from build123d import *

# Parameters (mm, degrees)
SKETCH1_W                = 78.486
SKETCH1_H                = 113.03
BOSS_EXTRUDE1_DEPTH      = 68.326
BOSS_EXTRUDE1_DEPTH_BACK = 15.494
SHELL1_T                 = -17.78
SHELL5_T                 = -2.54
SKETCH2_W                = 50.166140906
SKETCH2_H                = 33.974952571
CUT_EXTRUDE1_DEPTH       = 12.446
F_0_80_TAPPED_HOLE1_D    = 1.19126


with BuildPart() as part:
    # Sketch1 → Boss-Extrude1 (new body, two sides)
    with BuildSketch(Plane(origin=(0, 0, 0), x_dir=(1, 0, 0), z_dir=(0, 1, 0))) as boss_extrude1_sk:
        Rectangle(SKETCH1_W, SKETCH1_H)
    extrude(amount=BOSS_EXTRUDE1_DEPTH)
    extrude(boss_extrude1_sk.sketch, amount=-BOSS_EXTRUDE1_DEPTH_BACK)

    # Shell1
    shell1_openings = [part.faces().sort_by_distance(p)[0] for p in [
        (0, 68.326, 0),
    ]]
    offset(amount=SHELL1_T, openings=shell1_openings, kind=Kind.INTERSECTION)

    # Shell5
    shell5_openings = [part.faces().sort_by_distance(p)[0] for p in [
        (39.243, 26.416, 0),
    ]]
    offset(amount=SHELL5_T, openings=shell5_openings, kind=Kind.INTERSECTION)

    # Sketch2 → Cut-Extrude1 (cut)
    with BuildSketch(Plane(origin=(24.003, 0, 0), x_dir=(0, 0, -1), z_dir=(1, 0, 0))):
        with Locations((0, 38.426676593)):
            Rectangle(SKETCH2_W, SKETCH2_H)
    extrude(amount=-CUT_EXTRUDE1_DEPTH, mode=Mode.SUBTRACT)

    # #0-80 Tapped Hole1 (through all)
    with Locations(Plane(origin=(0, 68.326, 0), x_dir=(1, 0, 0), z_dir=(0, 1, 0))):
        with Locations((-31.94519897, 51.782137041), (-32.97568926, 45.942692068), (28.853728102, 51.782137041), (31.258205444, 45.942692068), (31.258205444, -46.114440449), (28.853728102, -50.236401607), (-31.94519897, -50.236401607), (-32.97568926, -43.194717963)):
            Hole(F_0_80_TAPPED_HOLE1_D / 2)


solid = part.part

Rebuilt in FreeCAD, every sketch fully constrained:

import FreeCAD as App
import Part
import Sketcher

V = App.Vector
Q = App.Units.Quantity


def faces_at(feature, points):
    """Names of the faces that lie closest to the given points."""
    faces = feature.Shape.Faces
    near = lambda p: min(range(len(faces)), key=lambda i: faces[i].distToShape(Part.Vertex(*p))[0])
    return sorted({f"Face{near(p) + 1}" for p in points})

doc = App.newDocument("Part")
body = doc.addObject("PartDesign::Body", "Body")

# Sketch on XZ plane
sketch1 = body.newObject("Sketcher::SketchObject", "Sketch")
sketch1.AttachmentSupport = (doc.getObject("XZ_Plane"), [""])
sketch1.MapMode = "FlatFace"
sketch1.addGeometry([
    Part.LineSegment(V(-39, -57, 0), V(-39, 57, 0)),
    Part.LineSegment(V(-39, 57, 0), V(39, 57, 0)),
    Part.LineSegment(V(39, 57, 0), V(39, -57, 0)),
    Part.LineSegment(V(39, -57, 0), V(-39, -57, 0)),
], False)
sketch1.addConstraint([
    Sketcher.Constraint("Coincident", 0, 2, 1, 1),
    Sketcher.Constraint("Coincident", 1, 2, 2, 1),
    Sketcher.Constraint("Coincident", 2, 2, 3, 1),
    Sketcher.Constraint("Coincident", 3, 2, 0, 1),
    Sketcher.Constraint("Vertical", 0),
    Sketcher.Constraint("Horizontal", 1),
    Sketcher.Constraint("Vertical", 2),
    Sketcher.Constraint("Horizontal", 3),
    Sketcher.Constraint("Symmetric", 0, 2, 2, 2, -1, 1),
    Sketcher.Constraint("DistanceX", 1, 1, 1, 2, Q("3.09 in")),
    Sketcher.Constraint("DistanceY", 0, 1, 0, 2, Q("4.45 in")),
])
pad1 = body.newObject("PartDesign::Pad", "Pad")
pad1.Profile = sketch1
pad1.Type = "TwoLengths"
pad1.Length = Q("2.69 in")
pad1.Length2 = Q("0.61 in")
pad1.Reversed = True
doc.recompute()

thickness = body.newObject("PartDesign::Thickness", "Thickness")
thickness.Base = (pad1, faces_at(pad1, [(0, 68.326, 0)]))
thickness.Value = Q("0.7 in")
thickness.Reversed = True
thickness.Join = "Intersection"
doc.recompute()

thickness2 = body.newObject("PartDesign::Thickness", "Thickness001")
thickness2.Base = (thickness, faces_at(thickness, [(39.243, 26.416, 0)]))
thickness2.Value = Q("0.1 in")
thickness2.Reversed = True
thickness2.Join = "Intersection"

# Sketch on YZ plane
sketch2 = body.newObject("Sketcher::SketchObject", "Sketch001")
sketch2.AttachmentSupport = (doc.getObject("YZ_Plane"), [""])
sketch2.MapMode = "FlatFace"
sketch2.AttachmentOffset = App.Placement(V(0, 0, 0.945 * 25.4), App.Rotation())
sketch2.addGeometry([
    Part.LineSegment(V(55, 25, 0), V(21, 25, 0)),
    Part.LineSegment(V(21, 25, 0), V(21, -25, 0)),
    Part.LineSegment(V(21, -25, 0), V(55, -25, 0)),
    Part.LineSegment(V(55, -25, 0), V(55, 25, 0)),
], False)
sketch2.addConstraint([
    Sketcher.Constraint("Coincident", 0, 2, 1, 1),
    Sketcher.Constraint("Coincident", 1, 2, 2, 1),
    Sketcher.Constraint("Coincident", 2, 2, 3, 1),
    Sketcher.Constraint("Coincident", 3, 2, 0, 1),
    Sketcher.Constraint("Horizontal", 0),
    Sketcher.Constraint("Vertical", 1),
    Sketcher.Constraint("Horizontal", 2),
    Sketcher.Constraint("Vertical", 3),
    Sketcher.Constraint("DistanceY", 1, 2, 1, 1, 50.166141),
    Sketcher.Constraint("DistanceX", -1, 1, 0, 2, 21.4392),
    Sketcher.Constraint("DistanceX", 0, 2, 0, 1, 33.974953),
    Sketcher.Constraint("DistanceY", -1, 1, 0, 2, 25.08307),
])
pocket1 = body.newObject("PartDesign::Pocket", "Pocket")
pocket1.Profile = sketch2
pocket1.Length = Q("0.49 in")

# Sketch on XZ plane
sketch3 = body.newObject("Sketcher::SketchObject", "Sketch002")
sketch3.AttachmentSupport = (doc.getObject("XZ_Plane"), [""])
sketch3.MapMode = "FlatFace"
sketch3.AttachmentOffset = App.Placement(V(0, 0, -2.69 * 25.4), App.Rotation())
sketch3.addGeometry([
    Part.Circle(V(-31.9, -51.8, 0), V(0, 0, 1), 0.6),  # 0
    Part.Circle(V(-33, -45.9, 0), V(0, 0, 1), 0.6),  # 1
    Part.Circle(V(28.9, -51.8, 0), V(0, 0, 1), 0.6),  # 2
    Part.Circle(V(31.3, -45.9, 0), V(0, 0, 1), 0.6),  # 3
    Part.Circle(V(31.3, 46.1, 0), V(0, 0, 1), 0.6),  # 4
    Part.Circle(V(28.9, 50.2, 0), V(0, 0, 1), 0.6),  # 5
    Part.Circle(V(-31.9, 50.2, 0), V(0, 0, 1), 0.6),  # 6
    Part.Circle(V(-33, 43.2, 0), V(0, 0, 1), 0.6),  # 7
], False)
sketch3.addConstraint([
    Sketcher.Constraint("Equal", 0, 1),
    Sketcher.Constraint("Equal", 1, 2),
    Sketcher.Constraint("Equal", 2, 3),
    Sketcher.Constraint("Equal", 3, 4),
    Sketcher.Constraint("Equal", 4, 5),
    Sketcher.Constraint("Equal", 5, 6),
    Sketcher.Constraint("Equal", 6, 7),
    Sketcher.Constraint("Horizontal", 0, 3, 2, 3),
    Sketcher.Constraint("Horizontal", 1, 3, 3, 3),
    Sketcher.Constraint("Horizontal", 5, 3, 6, 3),
    Sketcher.Constraint("Vertical", 3, 3, 4, 3),
    Sketcher.Constraint("Vertical", 2, 3, 5, 3),
    Sketcher.Constraint("Vertical", 0, 3, 6, 3),
    Sketcher.Constraint("Vertical", 1, 3, 7, 3),
    Sketcher.Constraint("Diameter", 0, Q("0.0469 in")),
    Sketcher.Constraint("DistanceX", 0, 3, -1, 1, 31.945199),
    Sketcher.Constraint("DistanceY", -1, 1, 5, 3, 50.236402),
    Sketcher.Constraint("DistanceX", 1, 3, -1, 1, 32.975689),
    Sketcher.Constraint("DistanceX", -1, 1, 2, 3, 28.853728),
    Sketcher.Constraint("DistanceY", -1, 1, 4, 3, 46.11444),
    Sketcher.Constraint("DistanceY", 2, 3, 5, 3, 102.018539),
    Sketcher.Constraint("DistanceY", 1, 3, 7, 3, 89.13741),
    Sketcher.Constraint("DistanceY", 1, 3, -1, 1, 45.942692),
    Sketcher.Constraint("DistanceX", -1, 1, 3, 3, 31.258205),
])
doc.recompute()
hole = body.newObject("PartDesign::Hole", "Hole")
hole.Profile = sketch3
hole.ThreadType = "None"
hole.Diameter = Q("0.0469 in")
hole.DepthType = "ThroughAll"
hole.Reversed = True

doc.recompute()
